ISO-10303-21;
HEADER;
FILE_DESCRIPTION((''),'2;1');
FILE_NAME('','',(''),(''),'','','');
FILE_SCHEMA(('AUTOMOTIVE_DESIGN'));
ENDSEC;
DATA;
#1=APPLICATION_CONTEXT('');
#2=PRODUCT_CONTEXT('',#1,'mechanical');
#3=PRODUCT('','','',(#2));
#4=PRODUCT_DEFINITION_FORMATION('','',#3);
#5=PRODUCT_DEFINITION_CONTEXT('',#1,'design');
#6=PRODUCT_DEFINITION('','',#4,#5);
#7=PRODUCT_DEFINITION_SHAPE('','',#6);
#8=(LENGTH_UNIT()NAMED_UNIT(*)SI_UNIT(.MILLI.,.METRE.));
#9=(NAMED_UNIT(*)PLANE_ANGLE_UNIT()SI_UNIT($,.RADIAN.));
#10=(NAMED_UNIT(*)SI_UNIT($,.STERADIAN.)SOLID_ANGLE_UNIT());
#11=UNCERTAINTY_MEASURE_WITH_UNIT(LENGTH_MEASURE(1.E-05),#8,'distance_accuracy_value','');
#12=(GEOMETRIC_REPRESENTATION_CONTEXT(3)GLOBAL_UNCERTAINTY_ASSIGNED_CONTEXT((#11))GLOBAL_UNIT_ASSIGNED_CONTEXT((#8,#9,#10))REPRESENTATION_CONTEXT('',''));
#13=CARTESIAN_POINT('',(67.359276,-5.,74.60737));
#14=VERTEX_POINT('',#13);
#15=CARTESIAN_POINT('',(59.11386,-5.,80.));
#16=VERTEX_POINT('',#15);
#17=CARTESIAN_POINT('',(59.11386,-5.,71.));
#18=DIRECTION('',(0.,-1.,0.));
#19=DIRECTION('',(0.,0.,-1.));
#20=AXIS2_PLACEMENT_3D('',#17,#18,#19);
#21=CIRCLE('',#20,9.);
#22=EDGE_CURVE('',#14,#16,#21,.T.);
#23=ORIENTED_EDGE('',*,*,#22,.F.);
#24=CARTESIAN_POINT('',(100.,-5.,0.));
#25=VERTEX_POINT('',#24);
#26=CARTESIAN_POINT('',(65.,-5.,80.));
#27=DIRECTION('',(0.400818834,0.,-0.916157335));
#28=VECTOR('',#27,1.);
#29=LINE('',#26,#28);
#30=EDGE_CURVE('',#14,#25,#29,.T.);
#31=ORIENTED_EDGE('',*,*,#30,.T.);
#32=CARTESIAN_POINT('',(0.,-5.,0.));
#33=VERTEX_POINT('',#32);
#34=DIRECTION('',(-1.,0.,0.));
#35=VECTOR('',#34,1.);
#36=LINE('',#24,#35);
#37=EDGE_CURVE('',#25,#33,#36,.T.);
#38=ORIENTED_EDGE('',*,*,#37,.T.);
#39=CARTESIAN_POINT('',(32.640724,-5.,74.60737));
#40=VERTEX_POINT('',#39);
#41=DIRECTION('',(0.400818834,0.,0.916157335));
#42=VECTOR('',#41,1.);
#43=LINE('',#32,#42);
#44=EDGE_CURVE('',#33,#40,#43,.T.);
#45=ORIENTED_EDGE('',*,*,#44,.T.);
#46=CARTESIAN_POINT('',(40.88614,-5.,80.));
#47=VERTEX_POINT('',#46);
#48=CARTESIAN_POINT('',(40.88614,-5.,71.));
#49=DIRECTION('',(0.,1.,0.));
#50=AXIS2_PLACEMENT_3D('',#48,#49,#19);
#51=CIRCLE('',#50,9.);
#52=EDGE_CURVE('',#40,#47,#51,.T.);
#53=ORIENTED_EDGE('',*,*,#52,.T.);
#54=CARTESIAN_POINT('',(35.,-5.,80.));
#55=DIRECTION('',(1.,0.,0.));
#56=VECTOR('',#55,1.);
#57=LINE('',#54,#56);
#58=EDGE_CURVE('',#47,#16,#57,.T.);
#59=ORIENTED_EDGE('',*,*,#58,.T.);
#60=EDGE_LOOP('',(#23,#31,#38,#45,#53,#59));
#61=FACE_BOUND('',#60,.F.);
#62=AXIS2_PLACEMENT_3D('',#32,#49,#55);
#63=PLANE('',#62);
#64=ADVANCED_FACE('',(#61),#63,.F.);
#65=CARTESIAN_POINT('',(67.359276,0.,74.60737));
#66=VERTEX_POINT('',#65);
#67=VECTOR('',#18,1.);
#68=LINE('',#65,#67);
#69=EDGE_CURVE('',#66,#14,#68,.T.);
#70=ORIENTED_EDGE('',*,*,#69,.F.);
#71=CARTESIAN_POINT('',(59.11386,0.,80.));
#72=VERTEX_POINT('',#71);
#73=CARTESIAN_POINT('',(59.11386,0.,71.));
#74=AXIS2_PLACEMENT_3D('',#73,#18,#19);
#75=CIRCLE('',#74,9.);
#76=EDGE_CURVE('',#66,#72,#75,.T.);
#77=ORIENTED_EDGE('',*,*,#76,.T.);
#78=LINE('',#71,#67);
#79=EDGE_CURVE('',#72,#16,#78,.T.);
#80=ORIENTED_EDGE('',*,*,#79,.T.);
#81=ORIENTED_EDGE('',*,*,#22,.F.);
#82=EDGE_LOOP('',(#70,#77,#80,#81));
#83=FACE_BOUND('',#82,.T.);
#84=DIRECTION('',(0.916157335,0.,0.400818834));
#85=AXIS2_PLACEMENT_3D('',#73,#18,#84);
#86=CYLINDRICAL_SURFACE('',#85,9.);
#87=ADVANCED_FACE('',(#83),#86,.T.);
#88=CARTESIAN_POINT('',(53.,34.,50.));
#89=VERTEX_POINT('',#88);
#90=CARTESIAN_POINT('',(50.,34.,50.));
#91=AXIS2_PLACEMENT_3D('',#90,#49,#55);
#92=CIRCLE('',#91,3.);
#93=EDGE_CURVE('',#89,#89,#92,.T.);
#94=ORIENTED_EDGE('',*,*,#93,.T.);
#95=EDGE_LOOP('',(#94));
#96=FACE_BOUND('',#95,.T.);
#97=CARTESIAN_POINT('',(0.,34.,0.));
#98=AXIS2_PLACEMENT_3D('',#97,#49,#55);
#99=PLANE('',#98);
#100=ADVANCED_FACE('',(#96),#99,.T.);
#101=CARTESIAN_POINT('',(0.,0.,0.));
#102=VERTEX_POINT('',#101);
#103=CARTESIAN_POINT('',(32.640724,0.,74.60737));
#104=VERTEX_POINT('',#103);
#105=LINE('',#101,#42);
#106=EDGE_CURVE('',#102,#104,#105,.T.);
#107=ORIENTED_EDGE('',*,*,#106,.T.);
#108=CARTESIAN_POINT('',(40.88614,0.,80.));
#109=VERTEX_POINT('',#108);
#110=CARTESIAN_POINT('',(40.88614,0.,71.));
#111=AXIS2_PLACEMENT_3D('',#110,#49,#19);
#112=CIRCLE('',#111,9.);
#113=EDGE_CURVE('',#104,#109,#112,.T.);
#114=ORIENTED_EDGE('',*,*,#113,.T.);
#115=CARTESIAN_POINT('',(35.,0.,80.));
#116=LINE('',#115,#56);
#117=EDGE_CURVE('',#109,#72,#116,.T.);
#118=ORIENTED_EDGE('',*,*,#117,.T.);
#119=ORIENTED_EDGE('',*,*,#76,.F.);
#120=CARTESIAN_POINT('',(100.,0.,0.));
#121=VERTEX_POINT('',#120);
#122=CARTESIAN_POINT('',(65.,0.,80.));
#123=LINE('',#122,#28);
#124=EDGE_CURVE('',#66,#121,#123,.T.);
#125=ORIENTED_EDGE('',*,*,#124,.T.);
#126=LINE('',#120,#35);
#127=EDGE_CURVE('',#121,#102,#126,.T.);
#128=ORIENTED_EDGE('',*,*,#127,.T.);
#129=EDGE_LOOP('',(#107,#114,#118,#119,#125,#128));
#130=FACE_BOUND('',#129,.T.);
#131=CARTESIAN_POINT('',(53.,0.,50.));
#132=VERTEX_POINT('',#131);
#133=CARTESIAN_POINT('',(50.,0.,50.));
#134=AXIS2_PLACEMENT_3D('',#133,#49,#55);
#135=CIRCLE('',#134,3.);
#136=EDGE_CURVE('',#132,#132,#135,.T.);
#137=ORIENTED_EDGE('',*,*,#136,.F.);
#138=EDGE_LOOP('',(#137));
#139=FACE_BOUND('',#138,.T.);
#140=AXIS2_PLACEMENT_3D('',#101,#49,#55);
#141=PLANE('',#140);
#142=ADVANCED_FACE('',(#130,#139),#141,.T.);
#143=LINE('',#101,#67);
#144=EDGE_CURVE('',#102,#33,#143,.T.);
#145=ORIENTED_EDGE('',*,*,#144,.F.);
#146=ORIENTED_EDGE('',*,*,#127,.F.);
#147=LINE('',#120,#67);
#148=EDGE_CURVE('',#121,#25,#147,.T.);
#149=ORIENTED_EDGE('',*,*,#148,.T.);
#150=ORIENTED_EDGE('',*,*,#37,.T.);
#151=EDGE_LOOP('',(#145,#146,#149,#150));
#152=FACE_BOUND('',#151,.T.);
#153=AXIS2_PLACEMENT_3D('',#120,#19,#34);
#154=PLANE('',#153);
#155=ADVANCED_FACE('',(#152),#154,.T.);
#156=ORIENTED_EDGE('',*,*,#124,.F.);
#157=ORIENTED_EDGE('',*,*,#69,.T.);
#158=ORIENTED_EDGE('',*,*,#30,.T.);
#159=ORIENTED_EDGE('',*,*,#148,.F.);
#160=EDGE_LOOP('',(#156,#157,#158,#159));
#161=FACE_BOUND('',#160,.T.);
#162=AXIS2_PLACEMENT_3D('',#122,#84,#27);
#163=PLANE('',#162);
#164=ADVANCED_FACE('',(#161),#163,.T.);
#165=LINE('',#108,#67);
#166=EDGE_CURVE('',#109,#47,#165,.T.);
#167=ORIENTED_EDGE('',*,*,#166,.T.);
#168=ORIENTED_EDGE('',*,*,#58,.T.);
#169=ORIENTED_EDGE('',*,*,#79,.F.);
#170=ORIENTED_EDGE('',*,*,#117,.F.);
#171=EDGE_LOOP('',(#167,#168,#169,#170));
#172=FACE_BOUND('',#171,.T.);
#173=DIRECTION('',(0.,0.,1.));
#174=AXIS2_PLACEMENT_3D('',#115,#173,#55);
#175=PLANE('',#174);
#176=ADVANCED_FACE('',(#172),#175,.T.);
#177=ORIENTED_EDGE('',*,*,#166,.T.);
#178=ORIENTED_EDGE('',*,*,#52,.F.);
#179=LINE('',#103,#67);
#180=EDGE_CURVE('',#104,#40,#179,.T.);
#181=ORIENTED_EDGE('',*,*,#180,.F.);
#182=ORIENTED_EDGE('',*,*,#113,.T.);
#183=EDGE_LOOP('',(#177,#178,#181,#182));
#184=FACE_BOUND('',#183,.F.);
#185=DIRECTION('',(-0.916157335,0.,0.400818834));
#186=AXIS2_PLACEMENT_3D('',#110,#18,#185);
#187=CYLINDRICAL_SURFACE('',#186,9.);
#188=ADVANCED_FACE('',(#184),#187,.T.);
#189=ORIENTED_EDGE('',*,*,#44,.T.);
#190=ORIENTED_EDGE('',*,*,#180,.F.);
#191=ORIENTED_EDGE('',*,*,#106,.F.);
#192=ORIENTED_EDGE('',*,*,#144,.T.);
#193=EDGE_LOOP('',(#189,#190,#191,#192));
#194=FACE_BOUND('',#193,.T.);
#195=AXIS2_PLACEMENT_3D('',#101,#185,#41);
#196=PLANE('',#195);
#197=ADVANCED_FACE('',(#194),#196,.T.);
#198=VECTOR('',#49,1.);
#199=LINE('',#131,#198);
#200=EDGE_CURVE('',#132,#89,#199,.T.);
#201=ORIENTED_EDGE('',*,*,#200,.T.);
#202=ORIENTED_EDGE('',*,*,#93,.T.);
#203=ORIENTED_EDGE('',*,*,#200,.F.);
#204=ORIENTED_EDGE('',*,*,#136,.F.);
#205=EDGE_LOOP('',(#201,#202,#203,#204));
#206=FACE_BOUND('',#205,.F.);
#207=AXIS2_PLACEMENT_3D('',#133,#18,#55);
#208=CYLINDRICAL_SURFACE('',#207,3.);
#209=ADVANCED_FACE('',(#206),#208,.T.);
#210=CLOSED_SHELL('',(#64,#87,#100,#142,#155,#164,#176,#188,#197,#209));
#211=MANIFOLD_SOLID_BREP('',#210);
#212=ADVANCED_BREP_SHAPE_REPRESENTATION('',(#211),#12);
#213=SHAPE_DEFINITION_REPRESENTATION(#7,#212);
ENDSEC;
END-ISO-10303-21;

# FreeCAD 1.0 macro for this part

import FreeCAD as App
import Part
import Sketcher
from FreeCAD import Vector
Q = App.Units.Quantity


def edges_at(feature, points):
    """Names of the edges that pass closest to the given points."""
    edges = feature.Shape.Edges
    near = lambda p: min(range(len(edges)), key=lambda i: edges[i].distToShape(Part.Vertex(*p))[0])
    return sorted({f"Edge{near(p) + 1}" for p in points})

doc = App.newDocument("Part")
params = doc.addObject("Spreadsheet::Sheet", "Params")
for row, (alias, value) in enumerate([
    ("sketch1_width", "100 mm"),
    ("sketch1_width2", "30 mm"),
    ("pad1_length", "5 mm"),
    ("sketch2_diameter", "6 mm"),
    ("pad2_length", "34 mm"),
    ("fillet_radius", "9 mm"),
], start=1):
    params.set(f"A{row}", alias)
    params.set(f"B{row}", "=" + value)
    params.setAlias(f"B{row}", alias)

body = doc.addObject("PartDesign::Body", "Body")

# Sketch on XZ plane
sketch1 = body.newObject("Sketcher::SketchObject", "Sketch")
sketch1.AttachmentSupport = (doc.getObject("XZ_Plane"), [""])
sketch1.MapMode = "FlatFace"
sketch1.addGeometry(Part.LineSegment(Vector(100, 0, 0), Vector(0, 0, 0)), False)
sketch1.addGeometry(Part.LineSegment(Vector(0, 0, 0), Vector(35, 80, 0)), False)
sketch1.addGeometry(Part.LineSegment(Vector(35, 80, 0), Vector(65, 80, 0)), False)
sketch1.addGeometry(Part.LineSegment(Vector(65, 80, 0), Vector(100, 0, 0)), False)
sketch1.addConstraint(Sketcher.Constraint("Coincident", 0, 2, 1, 1))
sketch1.addConstraint(Sketcher.Constraint("Coincident", 1, 2, 2, 1))
sketch1.addConstraint(Sketcher.Constraint("Coincident", 2, 2, 3, 1))
sketch1.addConstraint(Sketcher.Constraint("Coincident", 3, 2, 0, 1))
sketch1.addConstraint(Sketcher.Constraint("Horizontal", 0))
sketch1.addConstraint(Sketcher.Constraint("Horizontal", 2))
sketch1.addConstraint(Sketcher.Constraint("Coincident", 0, 2, -1, 1))
sketch1.addConstraint(Sketcher.Constraint("Equal", 1, 3))
sketch1.addConstraint(Sketcher.Constraint("DistanceX", 0, 2, 0, 1, Q("100 mm")))
sketch1.addConstraint(Sketcher.Constraint("DistanceX", 2, 1, 2, 2, Q("30 mm")))
sketch1.addConstraint(Sketcher.Constraint("DistanceY", -1, 1, 1, 2, Q("80 mm")))
sketch1.setExpression("Constraints[8]", "Params.sketch1_width")
sketch1.setExpression("Constraints[9]", "Params.sketch1_width2")
pad1 = body.newObject("PartDesign::Pad", "Pad")
pad1.Profile = sketch1
pad1.setExpression("Length", "Params.pad1_length")

# Sketch on XZ plane
sketch2 = body.newObject("Sketcher::SketchObject", "Sketch001")
sketch2.AttachmentSupport = (doc.getObject("XZ_Plane"), [""])
sketch2.MapMode = "FlatFace"
sketch2.addGeometry(Part.Circle(Vector(50, 50, 0), Vector(0, 0, 1), 3), False)
sketch2.addConstraint(Sketcher.Constraint("Diameter", 0, Q("6 mm")))
sketch2.addConstraint(Sketcher.Constraint("DistanceX", -1, 1, 0, 3, Q("50 mm")))
sketch2.addConstraint(Sketcher.Constraint("DistanceY", -1, 1, 0, 3, Q("50 mm")))
sketch2.setExpression("Constraints[0]", "Params.sketch2_diameter")
pad2 = body.newObject("PartDesign::Pad", "Pad001")
pad2.Profile = sketch2
pad2.setExpression("Length", "Params.pad2_length")
pad2.Reversed = True
doc.recompute()

fillet = body.newObject("PartDesign::Fillet", "Fillet")
fillet.Base = (pad2, edges_at(pad2, [(65, -2.5, 80), (35, -2.5, 80)]))
fillet.setExpression("Radius", "Params.fillet_radius")

doc.recompute()
